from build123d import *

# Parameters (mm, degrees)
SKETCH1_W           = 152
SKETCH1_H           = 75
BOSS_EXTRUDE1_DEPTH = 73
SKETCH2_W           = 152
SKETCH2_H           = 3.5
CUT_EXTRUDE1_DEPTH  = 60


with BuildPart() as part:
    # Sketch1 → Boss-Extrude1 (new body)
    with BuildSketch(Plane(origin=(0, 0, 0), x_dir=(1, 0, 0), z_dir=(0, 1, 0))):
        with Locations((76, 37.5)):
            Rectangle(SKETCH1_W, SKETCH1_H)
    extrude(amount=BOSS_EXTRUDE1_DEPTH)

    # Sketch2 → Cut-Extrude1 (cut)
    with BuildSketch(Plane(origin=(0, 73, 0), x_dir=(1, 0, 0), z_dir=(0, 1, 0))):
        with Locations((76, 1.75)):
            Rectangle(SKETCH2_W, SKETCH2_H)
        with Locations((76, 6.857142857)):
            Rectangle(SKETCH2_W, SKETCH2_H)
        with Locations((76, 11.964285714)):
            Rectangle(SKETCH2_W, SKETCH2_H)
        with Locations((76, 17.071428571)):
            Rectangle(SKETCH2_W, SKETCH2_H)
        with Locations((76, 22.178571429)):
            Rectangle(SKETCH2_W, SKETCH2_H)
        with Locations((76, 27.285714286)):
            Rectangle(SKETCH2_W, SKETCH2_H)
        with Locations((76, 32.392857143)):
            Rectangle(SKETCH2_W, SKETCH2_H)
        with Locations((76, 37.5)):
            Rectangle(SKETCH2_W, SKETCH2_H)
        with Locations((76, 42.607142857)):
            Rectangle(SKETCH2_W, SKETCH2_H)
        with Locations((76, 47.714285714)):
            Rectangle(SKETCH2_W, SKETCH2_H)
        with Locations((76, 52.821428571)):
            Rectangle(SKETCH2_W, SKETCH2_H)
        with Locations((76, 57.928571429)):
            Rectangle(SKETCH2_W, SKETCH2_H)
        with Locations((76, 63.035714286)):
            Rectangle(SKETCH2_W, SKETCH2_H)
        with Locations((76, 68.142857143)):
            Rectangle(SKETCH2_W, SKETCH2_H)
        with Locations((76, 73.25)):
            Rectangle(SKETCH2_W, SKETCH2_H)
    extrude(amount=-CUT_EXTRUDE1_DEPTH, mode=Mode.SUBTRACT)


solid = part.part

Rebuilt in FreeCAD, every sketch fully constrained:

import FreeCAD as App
import Part
import Sketcher
Q = App.Units.Quantity

doc = App.newDocument("Part")
body = doc.addObject("PartDesign::Body", "Body")

sketch1 = doc.addObject("Sketcher::SketchObject", "Sketch")
body.addObject(sketch1)
sketch1.AttachmentSupport = (doc.XZ_Plane, [""])
sketch1.MapMode = "FlatFace"
sketch1.addGeometry([
    Part.LineSegment(App.Vector(0, -75, 0), App.Vector(0, 0, 0)),
    Part.LineSegment(App.Vector(0, 0, 0), App.Vector(152, 0, 0)),
    Part.LineSegment(App.Vector(152, 0, 0), App.Vector(152, -75, 0)),
    Part.LineSegment(App.Vector(152, -75, 0), App.Vector(0, -75, 0)),
], False)
sketch1.addConstraint([
    Sketcher.Constraint("Coincident", 0, 2, 1, 1),
    Sketcher.Constraint("Coincident", 1, 2, 2, 1),
    Sketcher.Constraint("Coincident", 2, 2, 3, 1),
    Sketcher.Constraint("Coincident", 3, 2, 0, 1),
    Sketcher.Constraint("Vertical", 0),
    Sketcher.Constraint("Horizontal", 1),
    Sketcher.Constraint("Vertical", 2),
    Sketcher.Constraint("Horizontal", 3),
    Sketcher.Constraint("Coincident", 0, 2, -1, 1),
    Sketcher.Constraint("DistanceX", 1, 1, 1, 2, Q("152 mm")),
    Sketcher.Constraint("DistanceY", 0, 1, 0, 2, Q("75 mm")),
])
pad1 = doc.addObject("PartDesign::Pad", "Pad")
body.addObject(pad1)
pad1.Profile = sketch1
pad1.Length = 73
pad1.Reversed = True

sketch2 = doc.addObject("Sketcher::SketchObject", "Sketch001")
body.addObject(sketch2)
sketch2.AttachmentSupport = (doc.XZ_Plane, [""])
sketch2.MapMode = "FlatFace"
sketch2.AttachmentOffset = App.Placement(App.Vector(0, 0, -73), App.Rotation())
sketch2.addGeometry([
    Part.LineSegment(App.Vector(0, -3.5, 0), App.Vector(0, 0, 0)),
    Part.LineSegment(App.Vector(0, 0, 0), App.Vector(152, 0, 0)),
    Part.LineSegment(App.Vector(152, 0, 0), App.Vector(152, -3.5, 0)),
    Part.LineSegment(App.Vector(152, -3.5, 0), App.Vector(0, -3.5, 0)),
    Part.LineSegment(App.Vector(0, -8.6, 0), App.Vector(0, -5.1, 0)),
    Part.LineSegment(App.Vector(0, -5.1, 0), App.Vector(152, -5.1, 0)),
    Part.LineSegment(App.Vector(152, -5.1, 0), App.Vector(152, -8.6, 0)),
    Part.LineSegment(App.Vector(152, -8.6, 0), App.Vector(0, -8.6, 0)),
    Part.LineSegment(App.Vector(0, -13.7, 0), App.Vector(0, -10.2, 0)),
    Part.LineSegment(App.Vector(0, -10.2, 0), App.Vector(152, -10.2, 0)),
    Part.LineSegment(App.Vector(152, -10.2, 0), App.Vector(152, -13.7, 0)),
    Part.LineSegment(App.Vector(152, -13.7, 0), App.Vector(0, -13.7, 0)),
    Part.LineSegment(App.Vector(0, -18.8, 0), App.Vector(0, -15.3, 0)),
    Part.LineSegment(App.Vector(0, -15.3, 0), App.Vector(152, -15.3, 0)),
    Part.LineSegment(App.Vector(152, -15.3, 0), App.Vector(152, -18.8, 0)),
    Part.LineSegment(App.Vector(152, -18.8, 0), App.Vector(0, -18.8, 0)),
    Part.LineSegment(App.Vector(0, -23.9, 0), App.Vector(0, -20.4, 0)),
    Part.LineSegment(App.Vector(0, -20.4, 0), App.Vector(152, -20.4, 0)),
    Part.LineSegment(App.Vector(152, -20.4, 0), App.Vector(152, -23.9, 0)),
    Part.LineSegment(App.Vector(152, -23.9, 0), App.Vector(0, -23.9, 0)),
    Part.LineSegment(App.Vector(0, -29, 0), App.Vector(0, -25.5, 0)),
    Part.LineSegment(App.Vector(0, -25.5, 0), App.Vector(152, -25.5, 0)),
    Part.LineSegment(App.Vector(152, -25.5, 0), App.Vector(152, -29, 0)),
    Part.LineSegment(App.Vector(152, -29, 0), App.Vector(0, -29, 0)),
    Part.LineSegment(App.Vector(0, -34.1, 0), App.Vector(0, -30.6, 0)),
    Part.LineSegment(App.Vector(0, -30.6, 0), App.Vector(152, -30.6, 0)),
    Part.LineSegment(App.Vector(152, -30.6, 0), App.Vector(152, -34.1, 0)),
    Part.LineSegment(App.Vector(152, -34.1, 0), App.Vector(0, -34.1, 0)),
    Part.LineSegment(App.Vector(0, -39.2, 0), App.Vector(0, -35.8, 0)),
    Part.LineSegment(App.Vector(0, -35.8, 0), App.Vector(152, -35.8, 0)),
    Part.LineSegment(App.Vector(152, -35.8, 0), App.Vector(152, -39.2, 0)),
    Part.LineSegment(App.Vector(152, -39.2, 0), App.Vector(0, -39.2, 0)),
    Part.LineSegment(App.Vector(0, -44.4, 0), App.Vector(0, -40.9, 0)),
    Part.LineSegment(App.Vector(0, -40.9, 0), App.Vector(152, -40.9, 0)),
    Part.LineSegment(App.Vector(152, -40.9, 0), App.Vector(152, -44.4, 0)),
    Part.LineSegment(App.Vector(152, -44.4, 0), App.Vector(0, -44.4, 0)),
    Part.LineSegment(App.Vector(0, -49.5, 0), App.Vector(0, -46, 0)),
    Part.LineSegment(App.Vector(0, -46, 0), App.Vector(152, -46, 0)),
    Part.LineSegment(App.Vector(152, -46, 0), App.Vector(152, -49.5, 0)),
    Part.LineSegment(App.Vector(152, -49.5, 0), App.Vector(0, -49.5, 0)),
    Part.LineSegment(App.Vector(0, -54.6, 0), App.Vector(0, -51.1, 0)),
    Part.LineSegment(App.Vector(0, -51.1, 0), App.Vector(152, -51.1, 0)),
    Part.LineSegment(App.Vector(152, -51.1, 0), App.Vector(152, -54.6, 0)),
    Part.LineSegment(App.Vector(152, -54.6, 0), App.Vector(0, -54.6, 0)),
    Part.LineSegment(App.Vector(0, -59.7, 0), App.Vector(0, -56.2, 0)),
    Part.LineSegment(App.Vector(0, -56.2, 0), App.Vector(152, -56.2, 0)),
    Part.LineSegment(App.Vector(152, -56.2, 0), App.Vector(152, -59.7, 0)),
    Part.LineSegment(App.Vector(152, -59.7, 0), App.Vector(0, -59.7, 0)),
    Part.LineSegment(App.Vector(0, -64.8, 0), App.Vector(0, -61.3, 0)),
    Part.LineSegment(App.Vector(0, -61.3, 0), App.Vector(152, -61.3, 0)),
    Part.LineSegment(App.Vector(152, -61.3, 0), App.Vector(152, -64.8, 0)),
    Part.LineSegment(App.Vector(152, -64.8, 0), App.Vector(0, -64.8, 0)),
    Part.LineSegment(App.Vector(0, -69.9, 0), App.Vector(0, -66.4, 0)),
    Part.LineSegment(App.Vector(0, -66.4, 0), App.Vector(152, -66.4, 0)),
    Part.LineSegment(App.Vector(152, -66.4, 0), App.Vector(152, -69.9, 0)),
    Part.LineSegment(App.Vector(152, -69.9, 0), App.Vector(0, -69.9, 0)),
    Part.LineSegment(App.Vector(0, -75, 0), App.Vector(0, -71.5, 0)),
    Part.LineSegment(App.Vector(0, -71.5, 0), App.Vector(152, -71.5, 0)),
    Part.LineSegment(App.Vector(152, -71.5, 0), App.Vector(152, -75, 0)),
    Part.LineSegment(App.Vector(152, -75, 0), App.Vector(0, -75, 0)),
], False)
sketch2.addConstraint([
    Sketcher.Constraint("Coincident", 0, 2, 1, 1),
    Sketcher.Constraint("Coincident", 1, 2, 2, 1),
    Sketcher.Constraint("Coincident", 2, 2, 3, 1),
    Sketcher.Constraint("Coincident", 3, 2, 0, 1),
    Sketcher.Constraint("Coincident", 4, 2, 5, 1),
    Sketcher.Constraint("Coincident", 5, 2, 6, 1),
    Sketcher.Constraint("Coincident", 6, 2, 7, 1),
    Sketcher.Constraint("Coincident", 7, 2, 4, 1),
    Sketcher.Constraint("Coincident", 8, 2, 9, 1),
    Sketcher.Constraint("Coincident", 9, 2, 10, 1),
    Sketcher.Constraint("Coincident", 10, 2, 11, 1),
    Sketcher.Constraint("Coincident", 11, 2, 8, 1),
    Sketcher.Constraint("Coincident", 12, 2, 13, 1),
    Sketcher.Constraint("Coincident", 13, 2, 14, 1),
    Sketcher.Constraint("Coincident", 14, 2, 15, 1),
    Sketcher.Constraint("Coincident", 15, 2, 12, 1),
    Sketcher.Constraint("Coincident", 16, 2, 17, 1),
    Sketcher.Constraint("Coincident", 17, 2, 18, 1),
    Sketcher.Constraint("Coincident", 18, 2, 19, 1),
    Sketcher.Constraint("Coincident", 19, 2, 16, 1),
    Sketcher.Constraint("Coincident", 20, 2, 21, 1),
    Sketcher.Constraint("Coincident", 21, 2, 22, 1),
    Sketcher.Constraint("Coincident", 22, 2, 23, 1),
    Sketcher.Constraint("Coincident", 23, 2, 20, 1),
    Sketcher.Constraint("Coincident", 24, 2, 25, 1),
    Sketcher.Constraint("Coincident", 25, 2, 26, 1),
    Sketcher.Constraint("Coincident", 26, 2, 27, 1),
    Sketcher.Constraint("Coincident", 27, 2, 24, 1),
    Sketcher.Constraint("Coincident", 28, 2, 29, 1),
    Sketcher.Constraint("Coincident", 29, 2, 30, 1),
    Sketcher.Constraint("Coincident", 30, 2, 31, 1),
    Sketcher.Constraint("Coincident", 31, 2, 28, 1),
    Sketcher.Constraint("Coincident", 32, 2, 33, 1),
    Sketcher.Constraint("Coincident", 33, 2, 34, 1),
    Sketcher.Constraint("Coincident", 34, 2, 35, 1),
    Sketcher.Constraint("Coincident", 35, 2, 32, 1),
    Sketcher.Constraint("Coincident", 36, 2, 37, 1),
    Sketcher.Constraint("Coincident", 37, 2, 38, 1),
    Sketcher.Constraint("Coincident", 38, 2, 39, 1),
    Sketcher.Constraint("Coincident", 39, 2, 36, 1),
    Sketcher.Constraint("Coincident", 40, 2, 41, 1),
    Sketcher.Constraint("Coincident", 41, 2, 42, 1),
    Sketcher.Constraint("Coincident", 42, 2, 43, 1),
    Sketcher.Constraint("Coincident", 43, 2, 40, 1),
    Sketcher.Constraint("Coincident", 44, 2, 45, 1),
    Sketcher.Constraint("Coincident", 45, 2, 46, 1),
    Sketcher.Constraint("Coincident", 46, 2, 47, 1),
    Sketcher.Constraint("Coincident", 47, 2, 44, 1),
    Sketcher.Constraint("Coincident", 48, 2, 49, 1),
    Sketcher.Constraint("Coincident", 49, 2, 50, 1),
    Sketcher.Constraint("Coincident", 50, 2, 51, 1),
    Sketcher.Constraint("Coincident", 51, 2, 48, 1),
    Sketcher.Constraint("Coincident", 52, 2, 53, 1),
    Sketcher.Constraint("Coincident", 53, 2, 54, 1),
    Sketcher.Constraint("Coincident", 54, 2, 55, 1),
    Sketcher.Constraint("Coincident", 55, 2, 52, 1),
    Sketcher.Constraint("Coincident", 56, 2, 57, 1),
    Sketcher.Constraint("Coincident", 57, 2, 58, 1),
    Sketcher.Constraint("Coincident", 58, 2, 59, 1),
    Sketcher.Constraint("Coincident", 59, 2, 56, 1),
    Sketcher.Constraint("Vertical", 0),
    Sketcher.Constraint("Horizontal", 1),
    Sketcher.Constraint("Vertical", 2),
    Sketcher.Constraint("Horizontal", 3),
    Sketcher.Constraint("Vertical", 4),
    Sketcher.Constraint("Horizontal", 5),
    Sketcher.Constraint("Vertical", 6),
    Sketcher.Constraint("Horizontal", 7),
    Sketcher.Constraint("Vertical", 8),
    Sketcher.Constraint("Horizontal", 9),
    Sketcher.Constraint("Vertical", 10),
    Sketcher.Constraint("Horizontal", 11),
    Sketcher.Constraint("Vertical", 12),
    Sketcher.Constraint("Horizontal", 13),
    Sketcher.Constraint("Vertical", 14),
    Sketcher.Constraint("Horizontal", 15),
    Sketcher.Constraint("Vertical", 16),
    Sketcher.Constraint("Horizontal", 17),
    Sketcher.Constraint("Vertical", 18),
    Sketcher.Constraint("Horizontal", 19),
    Sketcher.Constraint("Vertical", 20),
    Sketcher.Constraint("Horizontal", 21),
    Sketcher.Constraint("Vertical", 22),
    Sketcher.Constraint("Horizontal", 23),
    Sketcher.Constraint("Vertical", 24),
    Sketcher.Constraint("Horizontal", 25),
    Sketcher.Constraint("Vertical", 26),
    Sketcher.Constraint("Horizontal", 27),
    Sketcher.Constraint("Vertical", 28),
    Sketcher.Constraint("Horizontal", 29),
    Sketcher.Constraint("Vertical", 30),
    Sketcher.Constraint("Horizontal", 31),
    Sketcher.Constraint("Vertical", 32),
    Sketcher.Constraint("Horizontal", 33),
    Sketcher.Constraint("Vertical", 34),
    Sketcher.Constraint("Horizontal", 35),
    Sketcher.Constraint("Vertical", 36),
    Sketcher.Constraint("Horizontal", 37),
    Sketcher.Constraint("Vertical", 38),
    Sketcher.Constraint("Horizontal", 39),
    Sketcher.Constraint("Vertical", 40),
    Sketcher.Constraint("Horizontal", 41),
    Sketcher.Constraint("Vertical", 42),
    Sketcher.Constraint("Horizontal", 43),
    Sketcher.Constraint("Vertical", 44),
    Sketcher.Constraint("Horizontal", 45),
    Sketcher.Constraint("Vertical", 46),
    Sketcher.Constraint("Horizontal", 47),
    Sketcher.Constraint("Vertical", 48),
    Sketcher.Constraint("Horizontal", 49),
    Sketcher.Constraint("Vertical", 50),
    Sketcher.Constraint("Horizontal", 51),
    Sketcher.Constraint("Vertical", 52),
    Sketcher.Constraint("Horizontal", 53),
    Sketcher.Constraint("Vertical", 54),
    Sketcher.Constraint("Horizontal", 55),
    Sketcher.Constraint("Vertical", 56),
    Sketcher.Constraint("Horizontal", 57),
    Sketcher.Constraint("Vertical", 58),
    Sketcher.Constraint("Horizontal", 59),
    Sketcher.Constraint("Coincident", 0, 2, -1, 1),
    Sketcher.Constraint("PointOnObject", 4, 2, -2),
    Sketcher.Constraint("PointOnObject", 8, 2, -2),
    Sketcher.Constraint("PointOnObject", 12, 2, -2),
    Sketcher.Constraint("PointOnObject", 16, 2, -2),
    Sketcher.Constraint("PointOnObject", 20, 2, -2),
    Sketcher.Constraint("PointOnObject", 24, 2, -2),
    Sketcher.Constraint("PointOnObject", 28, 2, -2),
    Sketcher.Constraint("PointOnObject", 32, 2, -2),
    Sketcher.Constraint("PointOnObject", 36, 2, -2),
    Sketcher.Constraint("PointOnObject", 40, 2, -2),
    Sketcher.Constraint("PointOnObject", 44, 2, -2),
    Sketcher.Constraint("PointOnObject", 48, 2, -2),
    Sketcher.Constraint("PointOnObject", 52, 2, -2),
    Sketcher.Constraint("PointOnObject", 56, 2, -2),
    Sketcher.Constraint("Vertical", 2, 2, 5, 2),
    Sketcher.Constraint("Vertical", 6, 2, 9, 2),
    Sketcher.Constraint("Vertical", 10, 2, 13, 2),
    Sketcher.Constraint("Vertical", 14, 2, 17, 2),
    Sketcher.Constraint("Vertical", 18, 2, 21, 2),
    Sketcher.Constraint("Vertical", 22, 2, 25, 2),
    Sketcher.Constraint("Vertical", 26, 2, 29, 2),
    Sketcher.Constraint("Vertical", 30, 2, 33, 2),
    Sketcher.Constraint("Vertical", 34, 2, 37, 2),
    Sketcher.Constraint("Vertical", 38, 2, 41, 2),
    Sketcher.Constraint("Vertical", 42, 2, 45, 2),
    Sketcher.Constraint("Vertical", 46, 2, 49, 2),
    Sketcher.Constraint("Vertical", 50, 2, 53, 2),
    Sketcher.Constraint("Vertical", 54, 2, 57, 2),
    Sketcher.Constraint("Equal", 2, 4),
    Sketcher.Constraint("Equal", 6, 8),
    Sketcher.Constraint("Equal", 10, 12),
    Sketcher.Constraint("Equal", 14, 16),
    Sketcher.Constraint("Equal", 18, 20),
    Sketcher.Constraint("Equal", 22, 24),
    Sketcher.Constraint("Equal", 26, 28),
    Sketcher.Constraint("Equal", 30, 32),
    Sketcher.Constraint("Equal", 34, 36),
    Sketcher.Constraint("Equal", 38, 40),
    Sketcher.Constraint("Equal", 42, 44),
    Sketcher.Constraint("Equal", 46, 48),
    Sketcher.Constraint("Equal", 50, 52),
    Sketcher.Constraint("Equal", 54, 56),
    Sketcher.Constraint("DistanceX", 1, 1, 1, 2, Q("152 mm")),
    Sketcher.Constraint("DistanceY", 0, 1, 0, 2, Q("3.5 mm")),
    Sketcher.Constraint("DistanceY", 58, 2, -1, 1, Q("75 mm")),
    Sketcher.Constraint("DistanceY", 28, 2, -1, 1, Q("35.75 mm")),
    Sketcher.Constraint("DistanceY", 12, 2, -1, 1, Q("15.321429 mm")),
    Sketcher.Constraint("DistanceY", 16, 2, -1, 1, Q("20.428571 mm")),
    Sketcher.Constraint("DistanceY", 40, 2, -1, 1, Q("51.071429 mm")),
    Sketcher.Constraint("DistanceY", 44, 2, -1, 1, Q("56.178571 mm")),
    Sketcher.Constraint("DistanceY", 16, 2, 7, 2, Q("11.821429 mm")),
    Sketcher.Constraint("DistanceY", 20, 2, 11, 2, Q("11.821429 mm")),
    Sketcher.Constraint("DistanceY", 24, 2, 15, 2, Q("11.821429 mm")),
    Sketcher.Constraint("DistanceY", 32, 2, 23, 2, Q("11.821429 mm")),
    Sketcher.Constraint("DistanceY", 36, 2, 27, 2, Q("11.821429 mm")),
    Sketcher.Constraint("DistanceY", 44, 2, 35, 2, Q("11.821429 mm")),
    Sketcher.Constraint("DistanceY", 48, 2, 39, 2, Q("11.821429 mm")),
    Sketcher.Constraint("DistanceY", 52, 2, 43, 2, Q("11.821429 mm")),
])
pocket1 = doc.addObject("PartDesign::Pocket", "Pocket")
body.addObject(pocket1)
pocket1.Profile = sketch2
pocket1.Length = 60
pocket1.Reversed = True

doc.recompute()
